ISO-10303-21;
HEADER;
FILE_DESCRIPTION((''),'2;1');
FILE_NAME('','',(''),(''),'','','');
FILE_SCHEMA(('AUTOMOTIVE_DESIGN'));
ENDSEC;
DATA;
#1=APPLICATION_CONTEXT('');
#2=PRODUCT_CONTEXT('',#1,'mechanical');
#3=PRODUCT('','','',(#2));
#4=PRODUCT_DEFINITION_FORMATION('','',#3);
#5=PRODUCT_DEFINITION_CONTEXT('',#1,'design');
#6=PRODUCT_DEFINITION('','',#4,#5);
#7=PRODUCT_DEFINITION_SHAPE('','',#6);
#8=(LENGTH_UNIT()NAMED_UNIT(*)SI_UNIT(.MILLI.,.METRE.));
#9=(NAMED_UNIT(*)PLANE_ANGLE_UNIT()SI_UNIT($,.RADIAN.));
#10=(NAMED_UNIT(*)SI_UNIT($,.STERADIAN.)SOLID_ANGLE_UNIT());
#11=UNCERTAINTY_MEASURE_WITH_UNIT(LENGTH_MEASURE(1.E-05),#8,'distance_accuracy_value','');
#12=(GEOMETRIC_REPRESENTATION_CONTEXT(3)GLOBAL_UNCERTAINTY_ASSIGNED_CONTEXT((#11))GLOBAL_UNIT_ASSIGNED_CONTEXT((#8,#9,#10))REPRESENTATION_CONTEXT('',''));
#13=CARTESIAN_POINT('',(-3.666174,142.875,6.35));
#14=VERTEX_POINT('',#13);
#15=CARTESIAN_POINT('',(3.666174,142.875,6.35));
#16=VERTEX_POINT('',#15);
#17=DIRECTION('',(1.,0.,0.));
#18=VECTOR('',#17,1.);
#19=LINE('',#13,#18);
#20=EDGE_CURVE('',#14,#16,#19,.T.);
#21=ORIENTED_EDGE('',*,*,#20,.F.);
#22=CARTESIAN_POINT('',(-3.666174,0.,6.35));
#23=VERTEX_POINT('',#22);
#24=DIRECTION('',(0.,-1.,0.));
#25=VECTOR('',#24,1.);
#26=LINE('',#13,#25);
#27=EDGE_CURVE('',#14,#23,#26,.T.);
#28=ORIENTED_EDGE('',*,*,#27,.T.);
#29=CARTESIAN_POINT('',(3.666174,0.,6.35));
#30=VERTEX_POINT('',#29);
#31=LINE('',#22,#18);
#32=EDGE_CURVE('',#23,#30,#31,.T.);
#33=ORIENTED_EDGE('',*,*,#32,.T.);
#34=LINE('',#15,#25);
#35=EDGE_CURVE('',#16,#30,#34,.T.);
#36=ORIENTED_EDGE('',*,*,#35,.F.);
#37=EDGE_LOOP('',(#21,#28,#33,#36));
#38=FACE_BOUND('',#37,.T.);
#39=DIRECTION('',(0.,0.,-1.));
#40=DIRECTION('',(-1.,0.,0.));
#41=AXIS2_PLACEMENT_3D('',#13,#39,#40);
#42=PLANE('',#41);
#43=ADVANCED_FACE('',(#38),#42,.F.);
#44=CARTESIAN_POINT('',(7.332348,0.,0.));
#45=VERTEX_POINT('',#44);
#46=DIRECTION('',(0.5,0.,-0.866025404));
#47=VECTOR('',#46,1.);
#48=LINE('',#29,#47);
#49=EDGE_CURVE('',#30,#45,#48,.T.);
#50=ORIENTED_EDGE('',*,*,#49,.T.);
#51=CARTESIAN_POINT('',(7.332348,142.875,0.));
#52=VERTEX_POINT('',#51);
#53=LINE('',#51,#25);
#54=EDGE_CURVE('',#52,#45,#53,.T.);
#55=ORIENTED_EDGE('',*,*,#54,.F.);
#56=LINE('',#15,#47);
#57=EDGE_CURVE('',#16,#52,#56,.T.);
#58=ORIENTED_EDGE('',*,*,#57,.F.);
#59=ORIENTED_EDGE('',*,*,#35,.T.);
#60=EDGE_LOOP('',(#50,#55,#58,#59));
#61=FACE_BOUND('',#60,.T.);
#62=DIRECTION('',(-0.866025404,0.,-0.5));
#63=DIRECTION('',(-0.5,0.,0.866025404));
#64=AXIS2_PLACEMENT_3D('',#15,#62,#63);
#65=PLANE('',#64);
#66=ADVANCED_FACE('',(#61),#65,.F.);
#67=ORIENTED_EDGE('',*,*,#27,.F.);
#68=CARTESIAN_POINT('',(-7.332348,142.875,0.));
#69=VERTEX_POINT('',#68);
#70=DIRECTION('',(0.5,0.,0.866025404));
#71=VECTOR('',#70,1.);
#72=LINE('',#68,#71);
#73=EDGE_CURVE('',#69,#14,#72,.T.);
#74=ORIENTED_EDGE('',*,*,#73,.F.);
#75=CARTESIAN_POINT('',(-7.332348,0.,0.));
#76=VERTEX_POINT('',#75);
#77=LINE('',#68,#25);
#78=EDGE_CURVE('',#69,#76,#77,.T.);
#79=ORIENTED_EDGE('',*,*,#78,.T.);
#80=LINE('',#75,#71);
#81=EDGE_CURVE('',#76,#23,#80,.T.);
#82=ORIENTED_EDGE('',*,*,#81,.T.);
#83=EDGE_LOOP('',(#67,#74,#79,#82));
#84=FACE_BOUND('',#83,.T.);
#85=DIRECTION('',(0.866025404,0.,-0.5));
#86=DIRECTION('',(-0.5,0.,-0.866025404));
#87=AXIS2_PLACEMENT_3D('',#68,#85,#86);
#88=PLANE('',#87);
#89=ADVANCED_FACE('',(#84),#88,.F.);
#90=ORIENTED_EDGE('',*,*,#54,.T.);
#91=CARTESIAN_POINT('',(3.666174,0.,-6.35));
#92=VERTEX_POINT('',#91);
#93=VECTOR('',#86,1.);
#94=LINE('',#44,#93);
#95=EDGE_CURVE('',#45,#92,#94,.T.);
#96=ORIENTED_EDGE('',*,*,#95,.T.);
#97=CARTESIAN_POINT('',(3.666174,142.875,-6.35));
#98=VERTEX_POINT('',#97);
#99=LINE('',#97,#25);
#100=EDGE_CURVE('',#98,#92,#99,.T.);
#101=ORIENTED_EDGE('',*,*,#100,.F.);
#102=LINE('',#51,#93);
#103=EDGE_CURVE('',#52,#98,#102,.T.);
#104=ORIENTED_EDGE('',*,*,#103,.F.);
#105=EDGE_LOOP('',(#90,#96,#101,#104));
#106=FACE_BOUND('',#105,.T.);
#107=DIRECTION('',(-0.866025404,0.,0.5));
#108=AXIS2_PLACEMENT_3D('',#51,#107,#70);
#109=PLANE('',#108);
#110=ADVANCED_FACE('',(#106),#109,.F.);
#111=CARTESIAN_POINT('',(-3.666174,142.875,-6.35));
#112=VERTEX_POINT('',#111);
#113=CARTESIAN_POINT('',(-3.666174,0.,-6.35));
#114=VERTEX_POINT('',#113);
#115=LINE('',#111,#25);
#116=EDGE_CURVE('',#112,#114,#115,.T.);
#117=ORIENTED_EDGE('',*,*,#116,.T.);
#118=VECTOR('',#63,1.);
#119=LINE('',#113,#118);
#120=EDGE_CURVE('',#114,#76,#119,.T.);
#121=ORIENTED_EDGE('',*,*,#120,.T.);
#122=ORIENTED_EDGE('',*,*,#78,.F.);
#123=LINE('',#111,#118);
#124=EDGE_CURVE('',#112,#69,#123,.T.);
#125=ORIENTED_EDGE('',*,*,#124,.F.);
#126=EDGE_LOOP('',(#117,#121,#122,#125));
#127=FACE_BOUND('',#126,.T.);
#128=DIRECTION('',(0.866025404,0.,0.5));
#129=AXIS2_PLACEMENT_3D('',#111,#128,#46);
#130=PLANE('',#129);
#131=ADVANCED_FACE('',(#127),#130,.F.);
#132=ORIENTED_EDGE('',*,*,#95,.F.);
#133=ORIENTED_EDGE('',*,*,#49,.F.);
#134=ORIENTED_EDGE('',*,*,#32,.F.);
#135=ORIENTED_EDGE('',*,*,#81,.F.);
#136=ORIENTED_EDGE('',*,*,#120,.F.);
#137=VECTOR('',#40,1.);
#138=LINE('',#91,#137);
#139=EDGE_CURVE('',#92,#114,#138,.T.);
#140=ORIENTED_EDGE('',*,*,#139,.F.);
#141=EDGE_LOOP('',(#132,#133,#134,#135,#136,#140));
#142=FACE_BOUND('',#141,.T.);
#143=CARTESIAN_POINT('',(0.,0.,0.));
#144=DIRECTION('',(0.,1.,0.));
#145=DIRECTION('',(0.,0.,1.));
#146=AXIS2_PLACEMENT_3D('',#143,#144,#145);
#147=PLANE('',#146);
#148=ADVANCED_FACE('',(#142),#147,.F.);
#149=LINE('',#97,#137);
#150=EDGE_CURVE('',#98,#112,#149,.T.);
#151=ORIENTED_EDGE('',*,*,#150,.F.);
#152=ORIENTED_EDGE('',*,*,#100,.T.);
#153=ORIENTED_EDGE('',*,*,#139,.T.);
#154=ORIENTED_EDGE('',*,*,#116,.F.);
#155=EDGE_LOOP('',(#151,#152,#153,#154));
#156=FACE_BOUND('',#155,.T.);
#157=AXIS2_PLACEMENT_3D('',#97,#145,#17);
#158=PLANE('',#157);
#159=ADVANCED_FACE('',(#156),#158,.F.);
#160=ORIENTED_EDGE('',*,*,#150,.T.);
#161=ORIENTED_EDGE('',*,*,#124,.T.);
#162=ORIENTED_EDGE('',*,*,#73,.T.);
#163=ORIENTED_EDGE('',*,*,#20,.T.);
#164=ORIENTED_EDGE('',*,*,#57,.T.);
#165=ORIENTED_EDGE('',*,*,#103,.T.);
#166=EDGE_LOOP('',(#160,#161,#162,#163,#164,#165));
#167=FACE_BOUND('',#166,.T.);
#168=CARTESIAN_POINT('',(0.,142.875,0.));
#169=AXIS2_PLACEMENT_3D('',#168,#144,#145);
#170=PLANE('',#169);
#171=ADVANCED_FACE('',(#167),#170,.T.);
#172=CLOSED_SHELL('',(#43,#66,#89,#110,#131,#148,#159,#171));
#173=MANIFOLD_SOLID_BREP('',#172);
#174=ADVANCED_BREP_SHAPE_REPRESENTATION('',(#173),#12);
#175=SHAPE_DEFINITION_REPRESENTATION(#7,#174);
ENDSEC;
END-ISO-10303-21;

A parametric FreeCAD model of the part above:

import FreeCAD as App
import Part
import Sketcher

V = App.Vector
Q = App.Units.Quantity


def add_polygon(sketch, points):
    """Adds a closed chain of lines whose ends are joined by coincident constraints."""
    first, n = sketch.GeometryCount, len(points)
    for a, b in zip(points, points[1:] + points[:1]):
        sketch.addGeometry(Part.LineSegment(App.Vector(*a, 0), App.Vector(*b, 0)), False)
    for i in range(n):
        sketch.addConstraint(Sketcher.Constraint("Coincident", first + i, 2, first + (i + 1) % n, 1))

doc = App.newDocument("Part")
params = doc.addObject("Spreadsheet::Sheet", "Params")
for row, (alias, value) in enumerate([
    ("pad1_length", "5.625 in"),
], start=1):
    params.set(f"A{row}", alias)
    params.set(f"B{row}", "=" + value)
    params.setAlias(f"B{row}", alias)

body = doc.addObject("PartDesign::Body", "Body")

# Sketch on XZ plane
sketch1 = doc.addObject("Sketcher::SketchObject", "Sketch")
body.addObject(sketch1)
sketch1.AttachmentSupport = (doc.XZ_Plane, [""])
sketch1.MapMode = "FlatFace"
add_polygon(sketch1, [(7, 0), (4, -6), (-4, -6), (-7, 0), (-4, 6), (4, 6)])  # lines 0-5
sketch1.addConstraint(Sketcher.Constraint("Horizontal", 1))
sketch1.addConstraint(Sketcher.Constraint("Horizontal", 4))
sketch1.addConstraint(Sketcher.Constraint("Symmetric", 0, 2, 3, 2, -1, 1))
sketch1.addConstraint(Sketcher.Constraint("Symmetric", 2, 2, 5, 2, -1, 1))
sketch1.addConstraint(Sketcher.Constraint("PointOnObject", 2, 2, -1))
sketch1.addConstraint(Sketcher.Constraint("Parallel", 2, 5))
sketch1.addConstraint(Sketcher.Constraint("Vertical", 1, 2, 3, 2))
sketch1.addConstraint(Sketcher.Constraint("Angle", 0, Q("-120 deg")))
sketch1.addConstraint(Sketcher.Constraint("DistanceY", 1, 2, 3, 2, Q("0.5 in")))
sketch1.addConstraint(Sketcher.Constraint("DistanceX", 1, 2, 1, 1, Q("7.332348 mm")))
pad1 = doc.addObject("PartDesign::Pad", "Pad")
body.addObject(pad1)
pad1.Profile = sketch1
pad1.setExpression("Length", "Params.pad1_length")
pad1.Reversed = True

doc.recompute()
